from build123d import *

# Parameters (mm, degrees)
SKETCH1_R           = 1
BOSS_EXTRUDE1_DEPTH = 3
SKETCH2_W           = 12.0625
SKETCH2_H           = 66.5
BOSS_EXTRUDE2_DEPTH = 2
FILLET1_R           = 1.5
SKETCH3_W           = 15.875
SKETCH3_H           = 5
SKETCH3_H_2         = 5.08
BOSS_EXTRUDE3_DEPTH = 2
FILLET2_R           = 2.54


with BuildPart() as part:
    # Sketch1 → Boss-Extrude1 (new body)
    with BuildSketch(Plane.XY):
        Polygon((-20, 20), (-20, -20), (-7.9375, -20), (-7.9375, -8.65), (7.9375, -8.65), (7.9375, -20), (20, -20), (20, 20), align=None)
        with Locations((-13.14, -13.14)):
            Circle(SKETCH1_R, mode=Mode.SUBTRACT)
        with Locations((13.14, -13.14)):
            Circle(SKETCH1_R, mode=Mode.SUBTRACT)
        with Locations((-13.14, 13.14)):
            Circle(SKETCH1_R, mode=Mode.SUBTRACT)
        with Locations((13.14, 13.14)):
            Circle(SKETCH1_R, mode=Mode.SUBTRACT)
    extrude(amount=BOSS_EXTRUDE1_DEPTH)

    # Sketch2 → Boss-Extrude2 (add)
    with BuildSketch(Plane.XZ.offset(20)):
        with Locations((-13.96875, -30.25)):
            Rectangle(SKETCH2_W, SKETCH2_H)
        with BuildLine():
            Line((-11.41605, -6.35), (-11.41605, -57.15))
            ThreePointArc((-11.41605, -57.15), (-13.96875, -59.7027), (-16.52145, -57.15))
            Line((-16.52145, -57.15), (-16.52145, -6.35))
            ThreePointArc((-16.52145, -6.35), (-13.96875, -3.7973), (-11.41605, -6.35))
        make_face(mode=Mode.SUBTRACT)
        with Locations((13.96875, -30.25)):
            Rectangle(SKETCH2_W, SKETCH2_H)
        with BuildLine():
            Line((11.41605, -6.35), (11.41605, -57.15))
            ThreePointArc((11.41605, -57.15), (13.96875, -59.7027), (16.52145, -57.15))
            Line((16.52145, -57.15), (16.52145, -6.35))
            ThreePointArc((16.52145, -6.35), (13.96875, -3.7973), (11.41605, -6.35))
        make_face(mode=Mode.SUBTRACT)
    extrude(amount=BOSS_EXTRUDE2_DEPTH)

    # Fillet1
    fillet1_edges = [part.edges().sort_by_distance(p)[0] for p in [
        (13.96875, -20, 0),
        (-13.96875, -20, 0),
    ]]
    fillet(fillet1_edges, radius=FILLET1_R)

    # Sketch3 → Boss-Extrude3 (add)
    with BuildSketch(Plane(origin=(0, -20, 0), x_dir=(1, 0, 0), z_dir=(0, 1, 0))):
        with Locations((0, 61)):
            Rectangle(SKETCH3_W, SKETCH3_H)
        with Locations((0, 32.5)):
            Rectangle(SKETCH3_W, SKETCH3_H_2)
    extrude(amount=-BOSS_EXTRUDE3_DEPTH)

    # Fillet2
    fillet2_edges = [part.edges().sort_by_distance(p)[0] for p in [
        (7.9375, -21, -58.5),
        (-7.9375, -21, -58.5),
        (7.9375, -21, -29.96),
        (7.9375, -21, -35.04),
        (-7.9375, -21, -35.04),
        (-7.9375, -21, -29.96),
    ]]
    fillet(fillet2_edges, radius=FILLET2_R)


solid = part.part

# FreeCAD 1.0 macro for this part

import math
import FreeCAD as App
import Part
import Sketcher
from FreeCAD import Vector
Q = App.Units.Quantity


def edges_at(feature, points):
    """Names of the edges that pass closest to the given points."""
    edges = feature.Shape.Edges
    near = lambda p: min(range(len(edges)), key=lambda i: edges[i].distToShape(Part.Vertex(*p))[0])
    return sorted({f"Edge{near(p) + 1}" for p in points})


def add_polygon(sketch, points):
    """Adds a closed chain of lines whose ends are joined by coincident constraints."""
    first, n = sketch.GeometryCount, len(points)
    for a, b in zip(points, points[1:] + points[:1]):
        sketch.addGeometry(Part.LineSegment(App.Vector(*a, 0), App.Vector(*b, 0)), False)
    for i in range(n):
        sketch.addConstraint(Sketcher.Constraint("Coincident", first + i, 2, first + (i + 1) % n, 1))

doc = App.newDocument("Part")
params = doc.addObject("Spreadsheet::Sheet", "Params")
for row, (alias, value) in enumerate([
    ("sketch1_diameter", "2 mm"),
    ("sketch1_width", "40 mm"),
    ("sketch1_height", "11.35 mm"),
    ("pad1_length", "3 mm"),
    ("sketch2_height", "66.5 mm"),
    ("sketch2_height2", "50.8 mm"),
    ("pad2_length", "2 mm"),
    ("fillet_radius", "1.5 mm"),
    ("sketch3_height", "5 mm"),
    ("sketch3_height2", "5.08 mm"),
    ("pad3_length", "2 mm"),
    ("fillet2_radius", "2.54 mm"),
], start=1):
    params.set(f"A{row}", alias)
    params.set(f"B{row}", "=" + value)
    params.setAlias(f"B{row}", alias)

body = doc.addObject("PartDesign::Body", "Body")

# Sketch on XY plane
sketch1 = body.newObject("Sketcher::SketchObject", "Sketch")
sketch1.AttachmentSupport = (doc.getObject("XY_Plane"), [""])
sketch1.MapMode = "FlatFace"
add_polygon(sketch1, [(-20, 20), (-20, -20), (-7.9375, -20), (-7.9375, -8.65), (7.9375, -8.65), (7.9375, -20), (20, -20), (20, 20)])  # lines 0-7
sketch1.addGeometry(Part.Circle(Vector(-13.14, -13.14, 0), Vector(0, 0, 1), 1), False)  # 8
sketch1.addGeometry(Part.Circle(Vector(13.14, -13.14, 0), Vector(0, 0, 1), 1), False)  # 9
sketch1.addGeometry(Part.Circle(Vector(-13.14, 13.14, 0), Vector(0, 0, 1), 1), False)  # 10
sketch1.addGeometry(Part.Circle(Vector(13.14, 13.14, 0), Vector(0, 0, 1), 1), False)  # 11
sketch1.addConstraint([
    Sketcher.Constraint("Vertical", 0),
    Sketcher.Constraint("Horizontal", 1),
    Sketcher.Constraint("Vertical", 2),
    Sketcher.Constraint("Horizontal", 3),
    Sketcher.Constraint("Vertical", 4),
    Sketcher.Constraint("Horizontal", 5),
    Sketcher.Constraint("Vertical", 6),
    Sketcher.Constraint("Horizontal", 7),
    Sketcher.Constraint("Equal", 8, 9),
    Sketcher.Constraint("Equal", 9, 10),
    Sketcher.Constraint("Equal", 10, 11),
    Sketcher.Constraint("Symmetric", 9, 3, 10, 3, -1, 1),
    Sketcher.Constraint("Symmetric", 8, 3, 11, 3, -1, 1),
    Sketcher.Constraint("Symmetric", 0, 2, 6, 2, -1, 1),
    Sketcher.Constraint("Symmetric", 8, 3, 9, 3, -2),
    Sketcher.Constraint("Symmetric", 1, 2, 4, 2, -2),
    Sketcher.Constraint("Equal", 7, 0),
    Sketcher.Constraint("Diameter", 8, Q("2 mm")),
    Sketcher.Constraint("DistanceX", 7, 2, 7, 1, Q("40 mm")),
    Sketcher.Constraint("DistanceY", 2, 1, 2, 2, Q("11.35 mm")),
    Sketcher.Constraint("DistanceX", 3, 1, 3, 2, Q("15.875 mm")),
    Sketcher.Constraint("DistanceX", 8, 3, -1, 1, Q("13.14 mm")),
    Sketcher.Constraint("DistanceY", 8, 3, -1, 1, Q("13.14 mm")),
])
sketch1.setExpression("Constraints[25]", "Params.sketch1_diameter")
sketch1.setExpression("Constraints[26]", "Params.sketch1_width")
sketch1.setExpression("Constraints[27]", "Params.sketch1_height")
pad1 = body.newObject("PartDesign::Pad", "Pad")
pad1.Profile = sketch1
pad1.setExpression("Length", "Params.pad1_length")

# Sketch on XZ plane
sketch2 = body.newObject("Sketcher::SketchObject", "Sketch001")
sketch2.AttachmentSupport = (doc.getObject("XZ_Plane"), [""])
sketch2.MapMode = "FlatFace"
sketch2.AttachmentOffset = App.Placement(Vector(0, 0, 20), App.Rotation())
add_polygon(sketch2, [(-20, 3), (-20, -63.5), (-7.9375, -63.5), (-7.9375, 3)])  # lines 0-3
sketch2.addGeometry(Part.ArcOfCircle(Part.Circle(Vector(-13.96875, -6.35, 0), Vector(0, 0, 1), 2.5527), math.radians(0), math.radians(180)), False)  # 4
sketch2.addGeometry(Part.LineSegment(Vector(-11.41605, -6.35, 0), Vector(-11.41605, -57.15, 0)), False)  # 5
sketch2.addGeometry(Part.ArcOfCircle(Part.Circle(Vector(-13.96875, -57.15, 0), Vector(0, 0, 1), 2.5527), math.radians(180), math.radians(360)), False)  # 6
sketch2.addGeometry(Part.LineSegment(Vector(-16.52145, -57.15, 0), Vector(-16.52145, -6.35, 0)), False)  # 7
add_polygon(sketch2, [(7.9375, 3), (7.9375, -63.5), (20, -63.5), (20, 3)])  # lines 8-11
sketch2.addGeometry(Part.LineSegment(Vector(11.41605, -57.15, 0), Vector(11.41605, -6.35, 0)), False)  # 12
sketch2.addGeometry(Part.ArcOfCircle(Part.Circle(Vector(13.96875, -6.35, 0), Vector(0, 0, 1), 2.5527), math.radians(0), math.radians(180)), False)  # 13
sketch2.addGeometry(Part.LineSegment(Vector(16.52145, -6.35, 0), Vector(16.52145, -57.15, 0)), False)  # 14
sketch2.addGeometry(Part.ArcOfCircle(Part.Circle(Vector(13.96875, -57.15, 0), Vector(0, 0, 1), 2.5527), math.radians(180), math.radians(360)), False)  # 15
sketch2.addConstraint([
    Sketcher.Constraint("Tangent", 4, 1, 5, 1),
    Sketcher.Constraint("Tangent", 5, 2, 6, 2),
    Sketcher.Constraint("Tangent", 6, 1, 7, 1),
    Sketcher.Constraint("Tangent", 7, 2, 4, 2),
    Sketcher.Constraint("Tangent", 12, 2, 13, 2),
    Sketcher.Constraint("Tangent", 13, 1, 14, 1),
    Sketcher.Constraint("Tangent", 14, 2, 15, 2),
    Sketcher.Constraint("Tangent", 15, 1, 12, 1),
    Sketcher.Constraint("Vertical", 0),
    Sketcher.Constraint("Horizontal", 1),
    Sketcher.Constraint("Vertical", 2),
    Sketcher.Constraint("Horizontal", 3),
    Sketcher.Constraint("Vertical", 5),
    Sketcher.Constraint("Vertical", 7),
    Sketcher.Constraint("Vertical", 8),
    Sketcher.Constraint("Horizontal", 9),
    Sketcher.Constraint("Vertical", 10),
    Sketcher.Constraint("Horizontal", 11),
    Sketcher.Constraint("Vertical", 12),
    Sketcher.Constraint("Vertical", 14),
    Sketcher.Constraint("Equal", 6, 13),
    Sketcher.Constraint("Symmetric", 4, 3, 13, 3, -2),
    Sketcher.Constraint("Symmetric", 1, 2, 8, 2, -2),
    Sketcher.Constraint("Symmetric", 3, 2, 10, 2, -2),
    Sketcher.Constraint("Horizontal", 6, 3, 15, 3),
    Sketcher.Constraint("DistanceY", 0, 2, 0, 1, Q("66.5 mm")),
    Sketcher.Constraint("DistanceY", 5, 2, 5, 1, Q("50.8 mm")),
    Sketcher.Constraint("DistanceX", 0, 2, -1, 1, Q("20 mm")),
    Sketcher.Constraint("DistanceY", -1, 1, 2, 2, Q("3 mm")),
    Sketcher.Constraint("Radius", 4, Q("2.5527 mm")),
    Sketcher.Constraint("DistanceY", 4, 3, -1, 1, Q("6.35 mm")),
    Sketcher.Constraint("DistanceX", 1, 1, 1, 2, Q("12.0625 mm")),
    Sketcher.Constraint("DistanceX", 4, 3, 13, 3, Q("27.9375 mm")),
])
sketch2.setExpression("Constraints[33]", "Params.sketch2_height")
sketch2.setExpression("Constraints[34]", "Params.sketch2_height2")
pad2 = body.newObject("PartDesign::Pad", "Pad001")
pad2.Profile = sketch2
pad2.setExpression("Length", "Params.pad2_length")
doc.recompute()

fillet = body.newObject("PartDesign::Fillet", "Fillet")
fillet.Base = (pad2, edges_at(pad2, [(13.969, -20, 0), (-13.969, -20, 0)]))
fillet.setExpression("Radius", "Params.fillet_radius")

# Sketch on XZ plane
sketch3 = body.newObject("Sketcher::SketchObject", "Sketch002")
sketch3.AttachmentSupport = (doc.getObject("XZ_Plane"), [""])
sketch3.MapMode = "FlatFace"
sketch3.AttachmentOffset = App.Placement(Vector(0, 0, 20), App.Rotation())
add_polygon(sketch3, [(-7.9375, -63.5), (-7.9375, -58.5), (7.9375, -58.5), (7.9375, -63.5)])  # lines 0-3
add_polygon(sketch3, [(-7.9375, -35.04), (-7.9375, -29.96), (7.9375, -29.96), (7.9375, -35.04)])  # lines 4-7
sketch3.addConstraint([
    Sketcher.Constraint("Vertical", 0),
    Sketcher.Constraint("Horizontal", 1),
    Sketcher.Constraint("Vertical", 2),
    Sketcher.Constraint("Horizontal", 3),
    Sketcher.Constraint("Vertical", 4),
    Sketcher.Constraint("Horizontal", 5),
    Sketcher.Constraint("Vertical", 6),
    Sketcher.Constraint("Horizontal", 7),
    Sketcher.Constraint("Vertical", 3, 2, 4, 2),
    Sketcher.Constraint("Vertical", 2, 2, 5, 2),
    Sketcher.Constraint("DistanceY", 0, 1, 0, 2, Q("5 mm")),
    Sketcher.Constraint("DistanceY", 4, 1, 4, 2, Q("5.08 mm")),
    Sketcher.Constraint("DistanceY", 0, 2, -1, 1, Q("58.5 mm")),
    Sketcher.Constraint("DistanceX", 1, 1, 1, 2, Q("15.875 mm")),
    Sketcher.Constraint("DistanceY", 4, 2, -1, 1, Q("29.96 mm")),
    Sketcher.Constraint("DistanceX", 0, 2, -1, 1, Q("7.9375 mm")),
])
sketch3.setExpression("Constraints[18]", "Params.sketch3_height")
sketch3.setExpression("Constraints[19]", "Params.sketch3_height2")
pad3 = body.newObject("PartDesign::Pad", "Pad002")
pad3.Profile = sketch3
pad3.setExpression("Length", "Params.pad3_length")
doc.recompute()

fillet2 = body.newObject("PartDesign::Fillet", "Fillet001")
fillet2.Base = (pad3, edges_at(pad3, [
    (7.938, -21, -58.5),
    (-7.938, -21, -58.5),
    (7.938, -21, -29.96),
    (7.938, -21, -35.04),
    (-7.938, -21, -35.04),
    (-7.938, -21, -29.96),
]))
fillet2.setExpression("Radius", "Params.fillet2_radius")

doc.recompute()
